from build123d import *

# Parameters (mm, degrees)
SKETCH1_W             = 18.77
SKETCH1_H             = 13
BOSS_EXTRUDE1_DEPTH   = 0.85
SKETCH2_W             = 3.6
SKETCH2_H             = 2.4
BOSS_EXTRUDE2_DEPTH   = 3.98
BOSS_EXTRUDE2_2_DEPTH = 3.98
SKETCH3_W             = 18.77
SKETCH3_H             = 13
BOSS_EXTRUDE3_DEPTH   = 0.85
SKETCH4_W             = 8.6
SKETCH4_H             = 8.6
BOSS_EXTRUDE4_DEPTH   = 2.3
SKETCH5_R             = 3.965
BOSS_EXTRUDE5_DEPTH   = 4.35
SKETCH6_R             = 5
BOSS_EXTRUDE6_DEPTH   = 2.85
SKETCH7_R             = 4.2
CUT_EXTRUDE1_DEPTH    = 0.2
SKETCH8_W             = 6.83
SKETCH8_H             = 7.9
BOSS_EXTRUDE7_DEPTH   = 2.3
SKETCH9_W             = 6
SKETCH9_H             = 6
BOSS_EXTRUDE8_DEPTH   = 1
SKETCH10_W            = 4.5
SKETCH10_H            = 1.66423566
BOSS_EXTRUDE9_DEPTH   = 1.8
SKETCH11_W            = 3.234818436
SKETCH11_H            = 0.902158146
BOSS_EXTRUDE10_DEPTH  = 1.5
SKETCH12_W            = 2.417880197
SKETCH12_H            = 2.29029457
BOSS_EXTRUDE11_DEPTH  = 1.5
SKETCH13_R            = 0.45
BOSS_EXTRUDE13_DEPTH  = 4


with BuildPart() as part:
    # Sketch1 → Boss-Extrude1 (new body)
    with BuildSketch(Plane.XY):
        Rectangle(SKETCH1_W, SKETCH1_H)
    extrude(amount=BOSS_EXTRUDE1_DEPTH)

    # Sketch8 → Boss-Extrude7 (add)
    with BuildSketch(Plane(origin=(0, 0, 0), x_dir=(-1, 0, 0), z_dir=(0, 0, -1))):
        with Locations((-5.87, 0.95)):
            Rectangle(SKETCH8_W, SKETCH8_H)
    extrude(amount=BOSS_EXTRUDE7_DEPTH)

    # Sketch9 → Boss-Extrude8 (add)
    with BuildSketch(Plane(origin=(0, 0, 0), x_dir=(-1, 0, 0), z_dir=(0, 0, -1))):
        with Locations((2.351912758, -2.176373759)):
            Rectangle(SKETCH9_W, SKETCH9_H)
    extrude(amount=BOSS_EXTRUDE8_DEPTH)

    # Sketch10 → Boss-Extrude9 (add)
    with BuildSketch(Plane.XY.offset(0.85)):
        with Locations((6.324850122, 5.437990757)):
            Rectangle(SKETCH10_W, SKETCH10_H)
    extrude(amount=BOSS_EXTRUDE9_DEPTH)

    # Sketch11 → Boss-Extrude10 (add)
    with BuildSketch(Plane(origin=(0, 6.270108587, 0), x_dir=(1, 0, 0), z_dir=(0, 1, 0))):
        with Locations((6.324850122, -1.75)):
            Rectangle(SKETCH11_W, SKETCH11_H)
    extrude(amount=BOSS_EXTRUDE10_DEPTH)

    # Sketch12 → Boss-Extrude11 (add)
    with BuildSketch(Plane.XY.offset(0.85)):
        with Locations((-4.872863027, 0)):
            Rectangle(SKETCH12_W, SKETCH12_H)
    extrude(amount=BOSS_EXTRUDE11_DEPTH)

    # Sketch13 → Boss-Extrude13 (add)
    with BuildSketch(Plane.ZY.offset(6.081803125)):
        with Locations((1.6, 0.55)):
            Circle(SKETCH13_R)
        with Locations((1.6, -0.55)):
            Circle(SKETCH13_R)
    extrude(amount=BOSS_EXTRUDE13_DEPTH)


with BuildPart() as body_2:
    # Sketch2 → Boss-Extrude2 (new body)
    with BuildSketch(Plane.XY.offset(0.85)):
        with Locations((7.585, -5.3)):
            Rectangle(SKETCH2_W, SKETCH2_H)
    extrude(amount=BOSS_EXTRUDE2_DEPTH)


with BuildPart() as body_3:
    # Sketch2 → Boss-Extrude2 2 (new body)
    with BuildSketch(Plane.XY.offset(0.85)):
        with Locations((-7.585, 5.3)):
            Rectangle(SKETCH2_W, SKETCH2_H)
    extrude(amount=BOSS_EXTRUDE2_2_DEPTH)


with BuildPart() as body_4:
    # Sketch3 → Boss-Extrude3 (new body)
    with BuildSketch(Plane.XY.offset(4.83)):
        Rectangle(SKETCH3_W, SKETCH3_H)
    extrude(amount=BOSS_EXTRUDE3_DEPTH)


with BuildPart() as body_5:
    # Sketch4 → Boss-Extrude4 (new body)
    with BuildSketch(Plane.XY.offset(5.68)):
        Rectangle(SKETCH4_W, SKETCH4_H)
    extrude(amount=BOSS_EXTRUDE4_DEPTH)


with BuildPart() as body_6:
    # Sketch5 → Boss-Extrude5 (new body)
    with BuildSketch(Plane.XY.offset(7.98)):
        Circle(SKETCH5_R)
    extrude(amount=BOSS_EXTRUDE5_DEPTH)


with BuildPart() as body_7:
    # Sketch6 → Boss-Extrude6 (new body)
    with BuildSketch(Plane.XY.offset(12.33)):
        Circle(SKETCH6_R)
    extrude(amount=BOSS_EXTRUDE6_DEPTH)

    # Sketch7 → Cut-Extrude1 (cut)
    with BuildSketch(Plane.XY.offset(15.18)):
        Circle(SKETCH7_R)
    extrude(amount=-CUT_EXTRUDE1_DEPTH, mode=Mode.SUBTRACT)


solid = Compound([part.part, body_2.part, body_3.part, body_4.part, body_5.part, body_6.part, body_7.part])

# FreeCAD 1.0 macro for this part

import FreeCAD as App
import Part
import Sketcher

V = App.Vector
Q = App.Units.Quantity


def add_polygon(sketch, points):
    """Adds a closed chain of lines whose ends are joined by coincident constraints."""
    first, n = sketch.GeometryCount, len(points)
    for a, b in zip(points, points[1:] + points[:1]):
        sketch.addGeometry(Part.LineSegment(App.Vector(*a, 0), App.Vector(*b, 0)), False)
    for i in range(n):
        sketch.addConstraint(Sketcher.Constraint("Coincident", first + i, 2, first + (i + 1) % n, 1))

doc = App.newDocument("Part")
body = doc.addObject("PartDesign::Body", "Body")

# Sketch on XY plane
sketch1 = body.newObject("Sketcher::SketchObject", "Sketch")
sketch1.AttachmentSupport = (doc.getObject("XY_Plane"), [""])
sketch1.MapMode = "FlatFace"
add_polygon(sketch1, [(-9, 6), (-9, -6), (9, -6), (9, 6)])  # lines 0-3
sketch1.addConstraint([
    Sketcher.Constraint("Vertical", 0),
    Sketcher.Constraint("Horizontal", 1),
    Sketcher.Constraint("Vertical", 2),
    Sketcher.Constraint("Horizontal", 3),
    Sketcher.Constraint("Symmetric", 0, 2, 2, 2, -1, 1),
    Sketcher.Constraint("DistanceY", 0, 2, 0, 1, Q("13 mm")),
    Sketcher.Constraint("DistanceX", 1, 1, 1, 2, Q("18.77 mm")),
])
pad1 = body.newObject("PartDesign::Pad", "Pad")
pad1.Profile = sketch1
pad1.Length = 0.85

# Sketch on XY plane
sketch2 = body.newObject("Sketcher::SketchObject", "Sketch001")
sketch2.AttachmentSupport = (doc.getObject("XY_Plane"), [""])
sketch2.MapMode = "FlatFace"
add_polygon(sketch2, [(9, 5), (9, -3), (2, -3), (2, 5)])  # lines 0-3
sketch2.addConstraint([
    Sketcher.Constraint("Vertical", 0),
    Sketcher.Constraint("Horizontal", 1),
    Sketcher.Constraint("Vertical", 2),
    Sketcher.Constraint("Horizontal", 3),
    Sketcher.Constraint("DistanceY", 0, 2, 0, 1, Q("7.9 mm")),
    Sketcher.Constraint("DistanceY", 0, 2, -1, 1, Q("3 mm")),
    Sketcher.Constraint("DistanceX", 1, 2, 1, 1, Q("6.83 mm")),
    Sketcher.Constraint("DistanceX", -1, 1, 0, 2, Q("9.285 mm")),
])
pad2 = body.newObject("PartDesign::Pad", "Pad001")
pad2.Profile = sketch2
pad2.Length = 2.3
pad2.Reversed = True

# Sketch on XY plane
sketch3 = body.newObject("Sketcher::SketchObject", "Sketch002")
sketch3.AttachmentSupport = (doc.getObject("XY_Plane"), [""])
sketch3.MapMode = "FlatFace"
add_polygon(sketch3, [(1, 1), (1, -5), (-5, -5), (-5, 1)])  # lines 0-3
sketch3.addConstraint([
    Sketcher.Constraint("Vertical", 0),
    Sketcher.Constraint("Horizontal", 1),
    Sketcher.Constraint("Vertical", 2),
    Sketcher.Constraint("Horizontal", 3),
    Sketcher.Constraint("Equal", 3, 0),
    Sketcher.Constraint("DistanceX", 1, 2, 1, 1, Q("6 mm")),
    Sketcher.Constraint("DistanceX", -1, 1, 0, 2, Q("0.648087 mm")),
    Sketcher.Constraint("DistanceY", 0, 2, -1, 1, Q("5.176374 mm")),
])
pad3 = body.newObject("PartDesign::Pad", "Pad002")
pad3.Profile = sketch3
pad3.Length = 1
pad3.Reversed = True

# Sketch on XY plane
sketch4 = body.newObject("Sketcher::SketchObject", "Sketch003")
sketch4.AttachmentSupport = (doc.getObject("XY_Plane"), [""])
sketch4.MapMode = "FlatFace"
sketch4.AttachmentOffset = App.Placement(V(0, 0, 0.85), App.Rotation())
add_polygon(sketch4, [(4.1, 6.3), (4.1, 4.6), (8.6, 4.6), (8.6, 6.3)])  # lines 0-3
sketch4.addConstraint([
    Sketcher.Constraint("Vertical", 0),
    Sketcher.Constraint("Horizontal", 1),
    Sketcher.Constraint("Vertical", 2),
    Sketcher.Constraint("Horizontal", 3),
    Sketcher.Constraint("DistanceX", 1, 1, 1, 2, Q("4.5 mm")),
    Sketcher.Constraint("DistanceY", 0, 2, 0, 1, Q("1.664236 mm")),
    Sketcher.Constraint("DistanceX", -1, 1, 0, 2, Q("4.07485 mm")),
    Sketcher.Constraint("DistanceY", -1, 1, 2, 2, Q("6.270109 mm")),
])
pad4 = body.newObject("PartDesign::Pad", "Pad003")
pad4.Profile = sketch4
pad4.Length = 1.8

# Sketch on XZ plane
sketch5 = body.newObject("Sketcher::SketchObject", "Sketch004")
sketch5.AttachmentSupport = (doc.getObject("XZ_Plane"), [""])
sketch5.MapMode = "FlatFace"
sketch5.AttachmentOffset = App.Placement(V(0, 0, -6.270109), App.Rotation())
add_polygon(sketch5, [(4.7, 1.3), (4.7, 2.2), (7.9, 2.2), (7.9, 1.3)])  # lines 0-3
sketch5.addConstraint([
    Sketcher.Constraint("Vertical", 0),
    Sketcher.Constraint("Horizontal", 1),
    Sketcher.Constraint("Vertical", 2),
    Sketcher.Constraint("Horizontal", 3),
    Sketcher.Constraint("DistanceX", 1, 1, 1, 2, Q("3.234818 mm")),
    Sketcher.Constraint("DistanceY", 0, 1, 0, 2, Q("0.902158 mm")),
    Sketcher.Constraint("DistanceX", -1, 1, 0, 2, Q("4.707441 mm")),
    Sketcher.Constraint("DistanceY", -1, 1, 0, 2, Q("2.201079 mm")),
])
pad5 = body.newObject("PartDesign::Pad", "Pad004")
pad5.Profile = sketch5
pad5.Length = 1.5
pad5.Reversed = True

# Sketch on XY plane
sketch6 = body.newObject("Sketcher::SketchObject", "Sketch005")
sketch6.AttachmentSupport = (doc.getObject("XY_Plane"), [""])
sketch6.MapMode = "FlatFace"
sketch6.AttachmentOffset = App.Placement(V(0, 0, 0.85), App.Rotation())
add_polygon(sketch6, [(-6.1, 1.1), (-6.1, -1.1), (-3.7, -1.1), (-3.7, 1.1)])  # lines 0-3
sketch6.addConstraint([
    Sketcher.Constraint("Vertical", 0),
    Sketcher.Constraint("Horizontal", 1),
    Sketcher.Constraint("Vertical", 2),
    Sketcher.Constraint("Horizontal", 3),
    Sketcher.Constraint("DistanceX", 1, 1, 1, 2, Q("2.41788 mm")),
    Sketcher.Constraint("DistanceY", 0, 2, 0, 1, Q("2.290295 mm")),
    Sketcher.Constraint("DistanceX", 0, 2, -1, 1, Q("6.081803 mm")),
    Sketcher.Constraint("DistanceY", 0, 2, -1, 1, Q("1.145147 mm")),
])
pad6 = body.newObject("PartDesign::Pad", "Pad005")
pad6.Profile = sketch6
pad6.Length = 1.5

# Sketch on YZ plane
sketch7 = body.newObject("Sketcher::SketchObject", "Sketch006")
sketch7.AttachmentSupport = (doc.getObject("YZ_Plane"), [""])
sketch7.MapMode = "FlatFace"
sketch7.AttachmentOffset = App.Placement(V(0, 0, -6.081803), App.Rotation())
sketch7.addGeometry([
    Part.Circle(V(0.55, 1.6, 0), V(0, 0, 1), 0.45),
    Part.Circle(V(-0.55, 1.6, 0), V(0, 0, 1), 0.45),
], False)
sketch7.addConstraint([
    Sketcher.Constraint("Equal", 0, 1),
    Sketcher.Constraint("Symmetric", 0, 3, 1, 3, -2),
    Sketcher.Constraint("Diameter", 0, Q("0.9 mm")),
    Sketcher.Constraint("DistanceY", -1, 1, 0, 3, Q("1.6 mm")),
    Sketcher.Constraint("DistanceX", 1, 3, 0, 3, Q("1.1 mm")),
])
pad7 = body.newObject("PartDesign::Pad", "Pad006")
pad7.Profile = sketch7
pad7.Length = 4
pad7.Reversed = True
body2 = doc.addObject("PartDesign::Body", "Body001")

# Sketch on XY plane
sketch8 = body2.newObject("Sketcher::SketchObject", "Sketch007")
sketch8.AttachmentSupport = (doc.getObject("XY_Plane001"), [""])
sketch8.MapMode = "FlatFace"
sketch8.AttachmentOffset = App.Placement(V(0, 0, 0.85), App.Rotation())
add_polygon(sketch8, [(5.8, -4.1), (5.8, -6.5), (9.4, -6.5), (9.4, -4.1)])  # lines 0-3
sketch8.addConstraint([
    Sketcher.Constraint("Vertical", 0),
    Sketcher.Constraint("Horizontal", 1),
    Sketcher.Constraint("Vertical", 2),
    Sketcher.Constraint("Horizontal", 3),
    Sketcher.Constraint("DistanceX", 1, 1, 1, 2, Q("3.6 mm")),
    Sketcher.Constraint("DistanceY", 0, 2, 0, 1, Q("2.4 mm")),
    Sketcher.Constraint("DistanceY", 0, 2, -1, 1, Q("6.5 mm")),
    Sketcher.Constraint("DistanceX", -1, 1, 0, 2, Q("5.785 mm")),
])
pad8 = body2.newObject("PartDesign::Pad", "Pad007")
pad8.Profile = sketch8
pad8.Length = 3.98
body3 = doc.addObject("PartDesign::Body", "Body002")

# Sketch on XY plane
sketch9 = body3.newObject("Sketcher::SketchObject", "Sketch008")
sketch9.AttachmentSupport = (doc.getObject("XY_Plane002"), [""])
sketch9.MapMode = "FlatFace"
sketch9.AttachmentOffset = App.Placement(V(0, 0, 0.85), App.Rotation())
add_polygon(sketch9, [(-9.4, 6.5), (-9.4, 4.1), (-5.8, 4.1), (-5.8, 6.5)])  # lines 0-3
sketch9.addConstraint([
    Sketcher.Constraint("Vertical", 0),
    Sketcher.Constraint("Horizontal", 1),
    Sketcher.Constraint("Vertical", 2),
    Sketcher.Constraint("Horizontal", 3),
    Sketcher.Constraint("DistanceX", 1, 1, 1, 2, Q("3.6 mm")),
    Sketcher.Constraint("DistanceY", 0, 2, 0, 1, Q("2.4 mm")),
    Sketcher.Constraint("DistanceY", -1, 1, 0, 2, Q("4.1 mm")),
    Sketcher.Constraint("DistanceX", 0, 2, -1, 1, Q("9.385 mm")),
])
pad9 = body3.newObject("PartDesign::Pad", "Pad008")
pad9.Profile = sketch9
pad9.Length = 3.98
body4 = doc.addObject("PartDesign::Body", "Body003")

# Sketch on XY plane
sketch10 = body4.newObject("Sketcher::SketchObject", "Sketch009")
sketch10.AttachmentSupport = (doc.getObject("XY_Plane003"), [""])
sketch10.MapMode = "FlatFace"
sketch10.AttachmentOffset = App.Placement(V(0, 0, 4.83), App.Rotation())
add_polygon(sketch10, [(-9, 6), (-9, -6), (9, -6), (9, 6)])  # lines 0-3
sketch10.addConstraint([
    Sketcher.Constraint("Vertical", 0),
    Sketcher.Constraint("Horizontal", 1),
    Sketcher.Constraint("Vertical", 2),
    Sketcher.Constraint("Horizontal", 3),
    Sketcher.Constraint("Symmetric", 0, 2, 2, 2, -1, 1),
    Sketcher.Constraint("DistanceY", 0, 2, 0, 1, Q("13 mm")),
    Sketcher.Constraint("DistanceX", 1, 1, 1, 2, Q("18.77 mm")),
])
pad10 = body4.newObject("PartDesign::Pad", "Pad009")
pad10.Profile = sketch10
pad10.Length = 0.85
body5 = doc.addObject("PartDesign::Body", "Body004")

# Sketch on XY plane
sketch11 = body5.newObject("Sketcher::SketchObject", "Sketch010")
sketch11.AttachmentSupport = (doc.getObject("XY_Plane004"), [""])
sketch11.MapMode = "FlatFace"
sketch11.AttachmentOffset = App.Placement(V(0, 0, 5.68), App.Rotation())
add_polygon(sketch11, [(-4, 4), (-4, -4), (4, -4), (4, 4)])  # lines 0-3
sketch11.addConstraint([
    Sketcher.Constraint("Vertical", 0),
    Sketcher.Constraint("Horizontal", 1),
    Sketcher.Constraint("Vertical", 2),
    Sketcher.Constraint("Horizontal", 3),
    Sketcher.Constraint("Symmetric", 0, 2, 2, 2, -1, 1),
    Sketcher.Constraint("Equal", 3, 0),
    Sketcher.Constraint("DistanceX", 1, 1, 1, 2, Q("8.6 mm")),
])
pad11 = body5.newObject("PartDesign::Pad", "Pad010")
pad11.Profile = sketch11
pad11.Length = 2.3
body6 = doc.addObject("PartDesign::Body", "Body005")

# Sketch on XY plane
sketch12 = body6.newObject("Sketcher::SketchObject", "Sketch011")
sketch12.AttachmentSupport = (doc.getObject("XY_Plane005"), [""])
sketch12.MapMode = "FlatFace"
sketch12.AttachmentOffset = App.Placement(V(0, 0, 7.98), App.Rotation())
sketch12.addGeometry(Part.Circle(V(0, 0, 0), V(0, 0, 1), 4), False)
sketch12.addConstraint([
    Sketcher.Constraint("Coincident", 0, 3, -1, 1),
    Sketcher.Constraint("Diameter", 0, Q("7.93 mm")),
])
pad12 = body6.newObject("PartDesign::Pad", "Pad011")
pad12.Profile = sketch12
pad12.Length = 4.35
body7 = doc.addObject("PartDesign::Body", "Body006")

# Sketch on XY plane
sketch13 = body7.newObject("Sketcher::SketchObject", "Sketch012")
sketch13.AttachmentSupport = (doc.getObject("XY_Plane006"), [""])
sketch13.MapMode = "FlatFace"
sketch13.AttachmentOffset = App.Placement(V(0, 0, 12.33), App.Rotation())
sketch13.addGeometry(Part.Circle(V(0, 0, 0), V(0, 0, 1), 5), False)
sketch13.addConstraint([
    Sketcher.Constraint("Coincident", 0, 3, -1, 1),
    Sketcher.Constraint("Diameter", 0, Q("10 mm")),
])
pad13 = body7.newObject("PartDesign::Pad", "Pad012")
pad13.Profile = sketch13
pad13.Length = 2.85

# Sketch on XY plane
sketch14 = body7.newObject("Sketcher::SketchObject", "Sketch013")
sketch14.AttachmentSupport = (doc.getObject("XY_Plane006"), [""])
sketch14.MapMode = "FlatFace"
sketch14.AttachmentOffset = App.Placement(V(0, 0, 15.18), App.Rotation())
sketch14.addGeometry(Part.Circle(V(0, 0, 0), V(0, 0, 1), 4.2), False)
sketch14.addConstraint([
    Sketcher.Constraint("Coincident", 0, 3, -1, 1),
    Sketcher.Constraint("Diameter", 0, Q("8.4 mm")),
])
pocket1 = body7.newObject("PartDesign::Pocket", "Pocket")
pocket1.Profile = sketch14
pocket1.Length = 0.2

doc.recompute()
